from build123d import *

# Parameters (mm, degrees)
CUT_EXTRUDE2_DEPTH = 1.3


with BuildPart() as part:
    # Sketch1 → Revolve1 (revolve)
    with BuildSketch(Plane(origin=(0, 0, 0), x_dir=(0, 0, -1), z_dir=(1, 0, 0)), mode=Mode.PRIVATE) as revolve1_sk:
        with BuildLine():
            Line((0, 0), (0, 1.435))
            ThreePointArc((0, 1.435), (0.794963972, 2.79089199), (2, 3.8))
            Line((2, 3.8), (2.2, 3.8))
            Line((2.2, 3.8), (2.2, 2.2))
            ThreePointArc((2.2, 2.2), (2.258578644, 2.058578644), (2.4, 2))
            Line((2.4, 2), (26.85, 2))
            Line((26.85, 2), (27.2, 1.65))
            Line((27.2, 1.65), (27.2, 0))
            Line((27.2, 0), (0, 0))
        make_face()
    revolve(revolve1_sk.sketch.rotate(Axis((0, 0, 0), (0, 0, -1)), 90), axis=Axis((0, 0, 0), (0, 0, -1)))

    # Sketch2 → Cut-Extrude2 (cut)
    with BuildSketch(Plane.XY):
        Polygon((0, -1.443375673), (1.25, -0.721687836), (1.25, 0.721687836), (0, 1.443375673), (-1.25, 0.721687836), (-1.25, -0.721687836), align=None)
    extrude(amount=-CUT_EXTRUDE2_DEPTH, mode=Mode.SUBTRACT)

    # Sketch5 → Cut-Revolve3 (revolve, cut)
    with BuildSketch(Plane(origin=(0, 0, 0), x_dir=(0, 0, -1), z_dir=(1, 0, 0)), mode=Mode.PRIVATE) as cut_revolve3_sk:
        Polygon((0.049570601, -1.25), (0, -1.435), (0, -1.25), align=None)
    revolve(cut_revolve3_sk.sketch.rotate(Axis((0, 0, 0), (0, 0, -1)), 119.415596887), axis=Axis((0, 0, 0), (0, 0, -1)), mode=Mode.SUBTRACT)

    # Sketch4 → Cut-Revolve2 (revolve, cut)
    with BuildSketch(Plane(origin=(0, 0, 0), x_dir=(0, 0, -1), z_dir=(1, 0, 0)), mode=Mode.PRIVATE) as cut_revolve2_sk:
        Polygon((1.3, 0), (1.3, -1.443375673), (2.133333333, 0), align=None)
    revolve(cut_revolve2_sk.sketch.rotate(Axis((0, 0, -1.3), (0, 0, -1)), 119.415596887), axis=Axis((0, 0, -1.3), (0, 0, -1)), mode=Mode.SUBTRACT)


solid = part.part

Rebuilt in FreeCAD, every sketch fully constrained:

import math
import FreeCAD as App
import Part
import Sketcher

V = App.Vector
Q = App.Units.Quantity


def add_polygon(sketch, points):
    """Adds a closed chain of lines whose ends are joined by coincident constraints."""
    first, n = sketch.GeometryCount, len(points)
    for a, b in zip(points, points[1:] + points[:1]):
        sketch.addGeometry(Part.LineSegment(App.Vector(*a, 0), App.Vector(*b, 0)), False)
    for i in range(n):
        sketch.addConstraint(Sketcher.Constraint("Coincident", first + i, 2, first + (i + 1) % n, 1))

doc = App.newDocument("Part")
body = doc.addObject("PartDesign::Body", "Body")

sketch1 = body.newObject("Sketcher::SketchObject", "Sketch")
sketch1.AttachmentSupport = (doc.getObject("YZ_Plane"), [""])
sketch1.MapMode = "FlatFace"
sketch1.addGeometry(Part.LineSegment(V(1.44, 0, 0), V(0, 0, 0)), False)
sketch1.addGeometry(Part.LineSegment(V(0, 0, 0), V(0, -27.2, 0)), False)
sketch1.addGeometry(Part.LineSegment(V(0, -27.2, 0), V(1.65, -27.2, 0)), False)
sketch1.addGeometry(Part.LineSegment(V(1.65, -27.2, 0), V(2, -26.85, 0)), False)
sketch1.addGeometry(Part.LineSegment(V(2, -26.85, 0), V(2, -2.4, 0)), False)
sketch1.addGeometry(Part.ArcOfCircle(Part.Circle(V(2.2, -2.4, 0), V(0, 0, 1), 0.2), math.radians(90), math.radians(180)), False)
sketch1.addGeometry(Part.LineSegment(V(2.2, -2.2, 0), V(3.8, -2.2, 0)), False)
sketch1.addGeometry(Part.LineSegment(V(3.8, -2.2, 0), V(3.8, -2, 0)), False)
sketch1.addGeometry(Part.ArcOfCircle(Part.Circle(V(-0.18, -4.31, 0), V(0, 0, 1), 4.6), math.radians(30), math.radians(69)), False)
sketch1.addConstraint(Sketcher.Constraint("Coincident", 0, 2, 1, 1))
sketch1.addConstraint(Sketcher.Constraint("Coincident", 1, 2, 2, 1))
sketch1.addConstraint(Sketcher.Constraint("Coincident", 2, 2, 3, 1))
sketch1.addConstraint(Sketcher.Constraint("Coincident", 3, 2, 4, 1))
sketch1.addConstraint(Sketcher.Constraint("Tangent", 4, 2, 5, 2))
sketch1.addConstraint(Sketcher.Constraint("Tangent", 5, 1, 6, 1))
sketch1.addConstraint(Sketcher.Constraint("Coincident", 6, 2, 7, 1))
sketch1.addConstraint(Sketcher.Constraint("Coincident", 7, 2, 8, 1))
sketch1.addConstraint(Sketcher.Constraint("Coincident", 8, 2, 0, 1))
sketch1.addConstraint(Sketcher.Constraint("Horizontal", 0))
sketch1.addConstraint(Sketcher.Constraint("Vertical", 1))
sketch1.addConstraint(Sketcher.Constraint("Horizontal", 2))
sketch1.addConstraint(Sketcher.Constraint("Vertical", 4))
sketch1.addConstraint(Sketcher.Constraint("Horizontal", 6))
sketch1.addConstraint(Sketcher.Constraint("Vertical", 7))
sketch1.addConstraint(Sketcher.Constraint("Coincident", 0, 2, -1, 1))
sketch1.addConstraint(Sketcher.Constraint("Radius", 5, 0.2))
sketch1.addConstraint(Sketcher.Constraint("Radius", 8, 4.6))
sketch1.addConstraint(Sketcher.Constraint("Angle", 3, Q("45 deg")))
sketch1.addConstraint(Sketcher.Constraint("DistanceX", 6, 1, 6, 2, 1.6))
sketch1.addConstraint(Sketcher.Constraint("DistanceY", 1, 2, 1, 1, 27.2))
sketch1.addConstraint(Sketcher.Constraint("DistanceY", 7, 1, 7, 2, 0.2))
sketch1.addConstraint(Sketcher.Constraint("DistanceX", -1, 1, 3, 2, 2.0))
sketch1.addConstraint(Sketcher.Constraint("DistanceY", 7, 2, -1, 1, 2.0))
sketch1.addConstraint(Sketcher.Constraint("DistanceX", 2, 1, 2, 2, 1.65))
sketch1.addConstraint(Sketcher.Constraint("DistanceX", 0, 2, 0, 1, 1.435))
revolution = body.newObject("PartDesign::Revolution", "Revolution")
revolution.Profile = sketch1
revolution.ReferenceAxis = (sketch1, ["V_Axis"])
revolution.Angle = 360

sketch2 = body.newObject("Sketcher::SketchObject", "Sketch001")
sketch2.AttachmentSupport = (doc.getObject("XY_Plane"), [""])
sketch2.MapMode = "FlatFace"
add_polygon(sketch2, [(0, -1.4), (1.2, -0.7), (1.2, 0.7), (0, 1.4), (-1.2, 0.7), (-1.2, -0.7)])
sketch2.addConstraint(Sketcher.Constraint("Vertical", 1))
sketch2.addConstraint(Sketcher.Constraint("Vertical", 4))
sketch2.addConstraint(Sketcher.Constraint("Symmetric", 0, 2, 3, 2, -1, 1))
sketch2.addConstraint(Sketcher.Constraint("Symmetric", 2, 2, 5, 2, -1, 1))
sketch2.addConstraint(Sketcher.Constraint("PointOnObject", 2, 2, -2))
sketch2.addConstraint(Sketcher.Constraint("Parallel", 2, 5))
sketch2.addConstraint(Sketcher.Constraint("Horizontal", 1, 2, 3, 2))
sketch2.addConstraint(Sketcher.Constraint("Angle", 0, Q("30 deg")))
sketch2.addConstraint(Sketcher.Constraint("DistanceX", 3, 2, 1, 2, 2.5))
sketch2.addConstraint(Sketcher.Constraint("DistanceY", 1, 1, 1, 2, 1.443376))
pocket1 = body.newObject("PartDesign::Pocket", "Pocket")
pocket1.Profile = sketch2
pocket1.Length = 1.3

sketch3 = body.newObject("Sketcher::SketchObject", "Sketch002")
sketch3.AttachmentSupport = (doc.getObject("YZ_Plane"), [""])
sketch3.MapMode = "FlatFace"
add_polygon(sketch3, [(-1.435, 0), (-1.25, -0.05), (-1.25, 0)])
sketch3.addConstraint(Sketcher.Constraint("Vertical", 1))
sketch3.addConstraint(Sketcher.Constraint("Horizontal", 2))
sketch3.addConstraint(Sketcher.Constraint("PointOnObject", 1, 2, -1))
sketch3.addConstraint(Sketcher.Constraint("Angle", 0, Q("-15 deg")))
sketch3.addConstraint(Sketcher.Constraint("DistanceX", 2, 2, 2, 1, 0.185))
sketch3.addConstraint(Sketcher.Constraint("DistanceX", 0, 2, -1, 1, 1.25))
groove = body.newObject("PartDesign::Groove", "Groove")
groove.Profile = sketch3
groove.ReferenceAxis = (sketch3, ["V_Axis"])
groove.Angle = 360

sketch4 = body.newObject("Sketcher::SketchObject", "Sketch003")
sketch4.AttachmentSupport = (doc.getObject("YZ_Plane"), [""])
sketch4.MapMode = "FlatFace"
add_polygon(sketch4, [(0, -1.3), (-1.4, -1.3), (0, -2.1)])
sketch4.addConstraint(Sketcher.Constraint("Horizontal", 0))
sketch4.addConstraint(Sketcher.Constraint("Vertical", 2))
sketch4.addConstraint(Sketcher.Constraint("PointOnObject", 1, 2, -2))
sketch4.addConstraint(Sketcher.Constraint("Angle", 1, Q("-30 deg")))
sketch4.addConstraint(Sketcher.Constraint("DistanceY", 0, 2, -1, 1, 1.3))
sketch4.addConstraint(Sketcher.Constraint("DistanceX", 0, 2, 0, 1, 1.443376))
groove2 = body.newObject("PartDesign::Groove", "Groove001")
groove2.Profile = sketch4
groove2.ReferenceAxis = (sketch4, ["V_Axis"])
groove2.Angle = 360

doc.recompute()
